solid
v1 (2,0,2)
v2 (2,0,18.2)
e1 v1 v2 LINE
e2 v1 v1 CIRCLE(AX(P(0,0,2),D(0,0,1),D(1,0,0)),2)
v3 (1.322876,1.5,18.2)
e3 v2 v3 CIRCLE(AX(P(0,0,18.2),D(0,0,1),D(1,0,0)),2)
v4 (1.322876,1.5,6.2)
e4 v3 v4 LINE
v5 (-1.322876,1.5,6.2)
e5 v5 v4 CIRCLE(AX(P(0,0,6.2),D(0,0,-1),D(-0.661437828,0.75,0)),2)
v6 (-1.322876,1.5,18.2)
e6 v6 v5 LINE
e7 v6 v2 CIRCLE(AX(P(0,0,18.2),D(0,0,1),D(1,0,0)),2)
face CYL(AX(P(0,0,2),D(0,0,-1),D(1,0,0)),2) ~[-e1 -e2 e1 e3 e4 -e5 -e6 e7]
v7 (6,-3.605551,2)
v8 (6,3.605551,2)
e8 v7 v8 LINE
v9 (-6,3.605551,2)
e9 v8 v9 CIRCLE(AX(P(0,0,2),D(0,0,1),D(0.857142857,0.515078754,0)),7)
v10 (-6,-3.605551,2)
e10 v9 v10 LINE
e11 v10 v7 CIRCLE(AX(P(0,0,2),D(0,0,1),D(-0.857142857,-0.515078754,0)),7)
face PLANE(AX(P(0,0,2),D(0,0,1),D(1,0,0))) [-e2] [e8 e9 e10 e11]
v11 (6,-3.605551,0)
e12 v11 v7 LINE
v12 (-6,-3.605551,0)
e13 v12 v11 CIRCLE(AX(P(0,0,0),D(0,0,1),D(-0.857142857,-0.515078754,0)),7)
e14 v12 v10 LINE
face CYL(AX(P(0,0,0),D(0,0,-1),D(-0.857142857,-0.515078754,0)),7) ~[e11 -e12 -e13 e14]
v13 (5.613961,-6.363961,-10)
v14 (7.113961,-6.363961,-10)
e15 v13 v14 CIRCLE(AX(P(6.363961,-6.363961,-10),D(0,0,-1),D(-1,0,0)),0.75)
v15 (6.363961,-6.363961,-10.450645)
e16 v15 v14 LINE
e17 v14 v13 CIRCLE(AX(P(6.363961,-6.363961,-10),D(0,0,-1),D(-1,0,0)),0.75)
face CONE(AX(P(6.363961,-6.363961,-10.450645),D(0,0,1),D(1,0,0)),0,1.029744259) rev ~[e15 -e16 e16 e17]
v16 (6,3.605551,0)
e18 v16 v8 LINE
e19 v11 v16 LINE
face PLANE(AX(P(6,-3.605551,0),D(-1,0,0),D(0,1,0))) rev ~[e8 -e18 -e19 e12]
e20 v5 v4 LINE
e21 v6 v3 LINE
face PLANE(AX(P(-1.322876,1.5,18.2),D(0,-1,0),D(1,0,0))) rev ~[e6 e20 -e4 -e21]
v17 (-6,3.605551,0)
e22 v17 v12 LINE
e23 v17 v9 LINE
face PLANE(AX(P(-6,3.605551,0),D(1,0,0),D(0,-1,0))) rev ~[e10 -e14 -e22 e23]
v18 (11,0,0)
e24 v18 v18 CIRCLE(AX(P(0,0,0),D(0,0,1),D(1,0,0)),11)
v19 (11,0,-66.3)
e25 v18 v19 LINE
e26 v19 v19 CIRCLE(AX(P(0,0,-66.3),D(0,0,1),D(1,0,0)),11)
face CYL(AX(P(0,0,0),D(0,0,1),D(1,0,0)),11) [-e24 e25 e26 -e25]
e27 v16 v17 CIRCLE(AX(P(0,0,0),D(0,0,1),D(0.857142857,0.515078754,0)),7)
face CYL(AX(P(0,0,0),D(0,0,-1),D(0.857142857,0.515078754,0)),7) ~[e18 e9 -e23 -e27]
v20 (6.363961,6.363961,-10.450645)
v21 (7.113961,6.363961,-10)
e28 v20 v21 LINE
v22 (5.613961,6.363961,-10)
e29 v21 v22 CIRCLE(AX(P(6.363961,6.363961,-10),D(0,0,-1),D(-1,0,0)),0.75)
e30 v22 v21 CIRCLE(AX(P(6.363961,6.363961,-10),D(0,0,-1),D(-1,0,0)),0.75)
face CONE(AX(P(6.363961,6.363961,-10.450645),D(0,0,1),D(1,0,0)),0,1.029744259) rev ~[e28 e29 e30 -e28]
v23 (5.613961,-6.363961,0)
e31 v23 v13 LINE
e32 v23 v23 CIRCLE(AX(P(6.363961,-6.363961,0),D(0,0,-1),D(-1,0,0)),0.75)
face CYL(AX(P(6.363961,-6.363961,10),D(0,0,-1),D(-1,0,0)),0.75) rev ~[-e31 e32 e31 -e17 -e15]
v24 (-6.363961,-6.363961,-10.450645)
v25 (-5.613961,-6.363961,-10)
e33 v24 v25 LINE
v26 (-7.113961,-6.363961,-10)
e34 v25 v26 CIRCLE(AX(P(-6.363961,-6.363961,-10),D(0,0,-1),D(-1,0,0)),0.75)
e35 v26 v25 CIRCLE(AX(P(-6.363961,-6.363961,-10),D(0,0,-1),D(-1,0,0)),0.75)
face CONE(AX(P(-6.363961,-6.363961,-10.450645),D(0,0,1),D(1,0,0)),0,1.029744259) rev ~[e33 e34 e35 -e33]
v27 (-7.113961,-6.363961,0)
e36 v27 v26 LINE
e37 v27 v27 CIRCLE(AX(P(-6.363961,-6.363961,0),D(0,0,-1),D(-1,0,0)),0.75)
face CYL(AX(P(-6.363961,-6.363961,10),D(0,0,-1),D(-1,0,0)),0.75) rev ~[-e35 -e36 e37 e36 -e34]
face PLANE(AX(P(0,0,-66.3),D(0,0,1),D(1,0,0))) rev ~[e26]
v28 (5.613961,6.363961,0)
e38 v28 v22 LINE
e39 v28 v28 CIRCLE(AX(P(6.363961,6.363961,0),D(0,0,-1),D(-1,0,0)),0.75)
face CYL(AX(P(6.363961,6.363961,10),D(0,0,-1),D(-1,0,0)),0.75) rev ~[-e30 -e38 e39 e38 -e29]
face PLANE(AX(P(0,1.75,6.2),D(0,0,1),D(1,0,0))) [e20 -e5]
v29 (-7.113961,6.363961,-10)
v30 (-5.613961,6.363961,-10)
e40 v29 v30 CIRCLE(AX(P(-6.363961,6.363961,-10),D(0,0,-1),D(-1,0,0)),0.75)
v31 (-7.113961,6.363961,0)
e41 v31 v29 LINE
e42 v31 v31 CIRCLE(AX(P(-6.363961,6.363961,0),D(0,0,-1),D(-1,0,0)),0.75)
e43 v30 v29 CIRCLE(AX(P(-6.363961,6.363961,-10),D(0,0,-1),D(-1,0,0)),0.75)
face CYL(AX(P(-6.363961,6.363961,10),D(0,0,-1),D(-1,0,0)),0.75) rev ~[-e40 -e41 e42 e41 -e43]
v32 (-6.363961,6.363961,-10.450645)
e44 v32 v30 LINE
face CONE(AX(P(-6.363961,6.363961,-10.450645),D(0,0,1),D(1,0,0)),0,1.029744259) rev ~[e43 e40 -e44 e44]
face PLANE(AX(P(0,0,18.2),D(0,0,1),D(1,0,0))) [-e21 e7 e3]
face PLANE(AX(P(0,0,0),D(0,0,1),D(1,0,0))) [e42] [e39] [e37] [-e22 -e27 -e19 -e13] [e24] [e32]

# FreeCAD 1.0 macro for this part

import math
import FreeCAD as App
import Part
import Sketcher

doc = App.newDocument("Part")
params = doc.addObject("Spreadsheet::Sheet", "Params")
for row, (alias, value) in enumerate([
    ("sketch1_diameter", "22 mm"),
    ("pad1_length", "66.3 mm"),
    ("sketch2_radius", "7 mm"),
    ("pad2_length", "2 mm"),
    ("sketch3_diameter", "4 mm"),
    ("pad3_length", "16.2 mm"),
    ("sketch4_height", "0.5 mm"),
    ("pocket1_length", "12 mm"),
    ("sketch5_diameter", "1.5 mm"),
    ("hole_diameter", "1.5 mm"),
    ("hole_depth", "10 mm"),
], start=1):
    params.set(f"A{row}", alias)
    params.set(f"B{row}", "=" + value)
    params.setAlias(f"B{row}", alias)

body = doc.addObject("PartDesign::Body", "Body")

sketch1 = doc.addObject("Sketcher::SketchObject", "Sketch")
body.addObject(sketch1)
sketch1.AttachmentSupport = (doc.XY_Plane, [""])
sketch1.MapMode = "FlatFace"
sketch1.addGeometry(Part.Circle(App.Vector(0, 0, 0), App.Vector(0, 0, 1), 11), False)
sketch1.addConstraint([
    Sketcher.Constraint("Coincident", 0, 3, -1, 1),
    Sketcher.Constraint("Diameter", 0, 22.0),
])
sketch1.setExpression("Constraints[1]", "Params.sketch1_diameter")
pad1 = doc.addObject("PartDesign::Pad", "Pad")
body.addObject(pad1)
pad1.Profile = sketch1
pad1.setExpression("Length", "Params.pad1_length")
pad1.Reversed = True

sketch2 = doc.addObject("Sketcher::SketchObject", "Sketch001")
body.addObject(sketch2)
sketch2.AttachmentSupport = (doc.XY_Plane, [""])
sketch2.MapMode = "FlatFace"
sketch2.addGeometry([
    Part.ArcOfCircle(Part.Circle(App.Vector(0, 0, 0), App.Vector(0, 0, 1), 7), math.radians(31.002719), math.radians(148.997281)),
    Part.LineSegment(App.Vector(-6, 3.605551, 0), App.Vector(-6, -3.605551, 0)),
    Part.ArcOfCircle(Part.Circle(App.Vector(0, 0, 0), App.Vector(0, 0, 1), 7), math.radians(-148.997281), math.radians(-31.002719)),
    Part.LineSegment(App.Vector(6, -3.605551, 0), App.Vector(6, 3.605551, 0)),
], False)
sketch2.addConstraint([
    Sketcher.Constraint("Coincident", 0, 2, 1, 1),
    Sketcher.Constraint("Coincident", 1, 2, 2, 1),
    Sketcher.Constraint("Coincident", 2, 2, 3, 1),
    Sketcher.Constraint("Coincident", 3, 2, 0, 1),
    Sketcher.Constraint("Vertical", 1),
    Sketcher.Constraint("Vertical", 3),
    Sketcher.Constraint("Coincident", 0, 3, -1, 1),
    Sketcher.Constraint("Coincident", 2, 3, -1, 1),
    Sketcher.Constraint("Equal", 0, 2),
    Sketcher.Constraint("Horizontal", 1, 2, 2, 2),
    Sketcher.Constraint("Radius", 0, 7.0),
    Sketcher.Constraint("DistanceX", 0, 2, -1, 1, 6.0),
])
sketch2.setExpression("Constraints[10]", "Params.sketch2_radius")
pad2 = doc.addObject("PartDesign::Pad", "Pad001")
body.addObject(pad2)
pad2.Profile = sketch2
pad2.setExpression("Length", "Params.pad2_length")

sketch3 = doc.addObject("Sketcher::SketchObject", "Sketch002")
body.addObject(sketch3)
sketch3.AttachmentSupport = (doc.XY_Plane, [""])
sketch3.MapMode = "FlatFace"
sketch3.AttachmentOffset = App.Placement(App.Vector(0, 0, 2), App.Rotation())
sketch3.addGeometry(Part.Circle(App.Vector(0, 0, 0), App.Vector(0, 0, 1), 2), False)
sketch3.addConstraint([
    Sketcher.Constraint("Coincident", 0, 3, -1, 1),
    Sketcher.Constraint("Diameter", 0, 4.0),
])
sketch3.setExpression("Constraints[1]", "Params.sketch3_diameter")
pad3 = doc.addObject("PartDesign::Pad", "Pad002")
body.addObject(pad3)
pad3.Profile = sketch3
pad3.setExpression("Length", "Params.pad3_length")

sketch4 = doc.addObject("Sketcher::SketchObject", "Sketch003")
body.addObject(sketch4)
sketch4.AttachmentSupport = (doc.XY_Plane, [""])
sketch4.MapMode = "FlatFace"
sketch4.AttachmentOffset = App.Placement(App.Vector(0, 0, 18.2), App.Rotation())
sketch4.addGeometry([
    Part.LineSegment(App.Vector(-1.322876, 2, 0), App.Vector(-1.322876, 1.5, 0)),
    Part.LineSegment(App.Vector(-1.322876, 1.5, 0), App.Vector(1.322876, 1.5, 0)),
    Part.LineSegment(App.Vector(1.322876, 1.5, 0), App.Vector(1.322876, 2, 0)),
    Part.LineSegment(App.Vector(1.322876, 2, 0), App.Vector(-1.322876, 2, 0)),
], False)
sketch4.addConstraint([
    Sketcher.Constraint("Coincident", 0, 2, 1, 1),
    Sketcher.Constraint("Coincident", 1, 2, 2, 1),
    Sketcher.Constraint("Coincident", 2, 2, 3, 1),
    Sketcher.Constraint("Coincident", 3, 2, 0, 1),
    Sketcher.Constraint("Vertical", 0),
    Sketcher.Constraint("Horizontal", 1),
    Sketcher.Constraint("Vertical", 2),
    Sketcher.Constraint("Horizontal", 3),
    Sketcher.Constraint("DistanceY", 0, 2, 0, 1, 0.5),
    Sketcher.Constraint("DistanceY", -1, 1, 2, 2, 2.0),
    Sketcher.Constraint("DistanceX", 1, 1, 1, 2, 2.645751),
    Sketcher.Constraint("DistanceX", 0, 2, -1, 1, 1.322876),
])
sketch4.setExpression("Constraints[8]", "Params.sketch4_height")
pocket1 = doc.addObject("PartDesign::Pocket", "Pocket")
body.addObject(pocket1)
pocket1.Profile = sketch4
pocket1.setExpression("Length", "Params.pocket1_length")

sketch5 = doc.addObject("Sketcher::SketchObject", "Sketch004")
body.addObject(sketch5)
sketch5.AttachmentSupport = (doc.XY_Plane, [""])
sketch5.MapMode = "FlatFace"
sketch5.addGeometry([
    Part.Circle(App.Vector(-6.363961, 6.363961, 0), App.Vector(0, 0, 1), 0.75),
    Part.Circle(App.Vector(-6.363961, -6.363961, 0), App.Vector(0, 0, 1), 0.75),
    Part.Circle(App.Vector(6.363961, 6.363961, 0), App.Vector(0, 0, 1), 0.75),
    Part.Circle(App.Vector(6.363961, -6.363961, 0), App.Vector(0, 0, 1), 0.75),
], False)
sketch5.addConstraint([
    Sketcher.Constraint("Equal", 0, 1),
    Sketcher.Constraint("Equal", 1, 2),
    Sketcher.Constraint("Equal", 2, 3),
    Sketcher.Constraint("Symmetric", 1, 3, 2, 3, -1, 1),
    Sketcher.Constraint("Symmetric", 0, 3, 3, 3, -1, 1),
    Sketcher.Constraint("Symmetric", 0, 3, 2, 3, -2),
    Sketcher.Constraint("Diameter", 0, 1.5),
    Sketcher.Constraint("DistanceX", 0, 3, -1, 1, 6.363961),
    Sketcher.Constraint("DistanceY", -1, 1, 0, 3, 6.363961),
])
sketch5.setExpression("Constraints[6]", "Params.sketch5_diameter")
doc.recompute()
hole = doc.addObject("PartDesign::Hole", "Hole")
body.addObject(hole)
hole.Profile = sketch5
hole.ThreadType = "None"
hole.setExpression("Diameter", "Params.hole_diameter")
hole.DepthType = "Dimension"
hole.setExpression("Depth", "Params.hole_depth")
hole.DrillPoint = "Angled"
hole.DrillPointAngle = 118

doc.recompute()
